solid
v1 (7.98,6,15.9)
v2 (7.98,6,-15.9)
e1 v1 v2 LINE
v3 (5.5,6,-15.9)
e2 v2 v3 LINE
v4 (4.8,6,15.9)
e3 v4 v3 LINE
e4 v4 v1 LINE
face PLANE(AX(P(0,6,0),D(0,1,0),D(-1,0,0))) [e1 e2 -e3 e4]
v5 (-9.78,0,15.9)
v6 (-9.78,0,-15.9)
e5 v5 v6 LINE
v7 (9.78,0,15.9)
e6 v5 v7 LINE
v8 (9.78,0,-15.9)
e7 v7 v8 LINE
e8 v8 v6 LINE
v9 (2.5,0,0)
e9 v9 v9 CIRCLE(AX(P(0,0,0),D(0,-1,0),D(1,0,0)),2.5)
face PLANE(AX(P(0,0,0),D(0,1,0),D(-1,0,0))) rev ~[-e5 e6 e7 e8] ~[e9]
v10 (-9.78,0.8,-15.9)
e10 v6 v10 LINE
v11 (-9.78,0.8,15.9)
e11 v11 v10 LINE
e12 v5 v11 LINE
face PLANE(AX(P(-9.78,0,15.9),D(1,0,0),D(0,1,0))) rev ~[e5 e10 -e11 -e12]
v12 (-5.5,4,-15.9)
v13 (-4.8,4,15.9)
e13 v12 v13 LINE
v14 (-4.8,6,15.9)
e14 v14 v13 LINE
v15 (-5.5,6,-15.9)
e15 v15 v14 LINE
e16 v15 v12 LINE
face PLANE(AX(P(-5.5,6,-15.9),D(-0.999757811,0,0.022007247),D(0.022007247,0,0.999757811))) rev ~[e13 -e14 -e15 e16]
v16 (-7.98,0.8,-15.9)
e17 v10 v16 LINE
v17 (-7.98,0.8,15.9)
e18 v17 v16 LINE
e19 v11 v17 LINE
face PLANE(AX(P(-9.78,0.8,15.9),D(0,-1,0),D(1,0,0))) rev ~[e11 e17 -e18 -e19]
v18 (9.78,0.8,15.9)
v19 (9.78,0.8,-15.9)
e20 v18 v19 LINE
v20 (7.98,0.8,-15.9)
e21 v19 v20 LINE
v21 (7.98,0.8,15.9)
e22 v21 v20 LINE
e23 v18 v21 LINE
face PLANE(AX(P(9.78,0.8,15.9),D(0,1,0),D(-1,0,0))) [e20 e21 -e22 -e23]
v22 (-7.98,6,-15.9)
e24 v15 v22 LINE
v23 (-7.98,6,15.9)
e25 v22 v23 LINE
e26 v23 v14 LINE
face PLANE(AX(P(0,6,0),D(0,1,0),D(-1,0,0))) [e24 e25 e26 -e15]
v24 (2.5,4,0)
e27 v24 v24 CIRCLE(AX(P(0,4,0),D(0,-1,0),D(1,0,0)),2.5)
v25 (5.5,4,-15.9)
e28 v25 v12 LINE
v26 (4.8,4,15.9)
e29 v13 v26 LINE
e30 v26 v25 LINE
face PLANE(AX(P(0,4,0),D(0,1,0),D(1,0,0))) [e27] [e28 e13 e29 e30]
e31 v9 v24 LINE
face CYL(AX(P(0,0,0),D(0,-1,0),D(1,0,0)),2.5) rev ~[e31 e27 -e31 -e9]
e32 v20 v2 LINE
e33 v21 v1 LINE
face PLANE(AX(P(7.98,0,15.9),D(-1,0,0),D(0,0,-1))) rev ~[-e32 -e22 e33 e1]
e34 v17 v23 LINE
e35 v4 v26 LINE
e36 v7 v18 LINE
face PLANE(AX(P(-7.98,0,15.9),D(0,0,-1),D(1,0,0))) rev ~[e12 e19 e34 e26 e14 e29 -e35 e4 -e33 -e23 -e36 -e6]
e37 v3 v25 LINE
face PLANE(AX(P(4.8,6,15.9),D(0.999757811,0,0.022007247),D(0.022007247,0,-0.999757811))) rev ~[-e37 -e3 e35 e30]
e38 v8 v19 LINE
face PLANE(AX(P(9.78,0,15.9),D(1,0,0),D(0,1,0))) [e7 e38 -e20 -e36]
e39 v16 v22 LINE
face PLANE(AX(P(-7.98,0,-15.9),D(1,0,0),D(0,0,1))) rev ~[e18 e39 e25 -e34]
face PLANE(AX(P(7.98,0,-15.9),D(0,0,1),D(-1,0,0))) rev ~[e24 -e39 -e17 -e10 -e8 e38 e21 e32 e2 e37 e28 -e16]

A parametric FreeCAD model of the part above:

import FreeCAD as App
import Part
import Sketcher
Q = App.Units.Quantity

doc = App.newDocument("Part")
body = doc.addObject("PartDesign::Body", "Body")

# Sketch on XZ plane
sketch1 = body.newObject("Sketcher::SketchObject", "Sketch")
sketch1.AttachmentSupport = (doc.getObject("XZ_Plane"), [""])
sketch1.MapMode = "FlatFace"
sketch1.addGeometry(Part.LineSegment(App.Vector(-8, -16, 0), App.Vector(-8, 16, 0)), False)
sketch1.addGeometry(Part.LineSegment(App.Vector(-8, 16, 0), App.Vector(8, 16, 0)), False)
sketch1.addGeometry(Part.LineSegment(App.Vector(8, 16, 0), App.Vector(8, -16, 0)), False)
sketch1.addGeometry(Part.LineSegment(App.Vector(8, -16, 0), App.Vector(-8, -16, 0)), False)
sketch1.addConstraint(Sketcher.Constraint("Coincident", 0, 2, 1, 1))
sketch1.addConstraint(Sketcher.Constraint("Coincident", 1, 2, 2, 1))
sketch1.addConstraint(Sketcher.Constraint("Coincident", 2, 2, 3, 1))
sketch1.addConstraint(Sketcher.Constraint("Coincident", 3, 2, 0, 1))
sketch1.addConstraint(Sketcher.Constraint("Vertical", 0))
sketch1.addConstraint(Sketcher.Constraint("Horizontal", 1))
sketch1.addConstraint(Sketcher.Constraint("Vertical", 2))
sketch1.addConstraint(Sketcher.Constraint("Horizontal", 3))
sketch1.addConstraint(Sketcher.Constraint("Symmetric", 0, 2, 2, 2, -1, 1))
sketch1.addConstraint(Sketcher.Constraint("DistanceY", 0, 1, 0, 2, Q("31.8 mm")))
sketch1.addConstraint(Sketcher.Constraint("DistanceX", 1, 1, 1, 2, Q("15.96 mm")))
pad1 = body.newObject("PartDesign::Pad", "Pad")
pad1.Profile = sketch1
pad1.Length = 6
pad1.Reversed = True

# Sketch on XZ plane
sketch2 = body.newObject("Sketcher::SketchObject", "Sketch001")
sketch2.AttachmentSupport = (doc.getObject("XZ_Plane"), [""])
sketch2.MapMode = "FlatFace"
sketch2.AttachmentOffset = App.Placement(App.Vector(0, 0, -6), App.Rotation())
sketch2.addGeometry(Part.LineSegment(App.Vector(-6, -16, 0), App.Vector(-5, 16, 0)), False)
sketch2.addGeometry(Part.LineSegment(App.Vector(-5, 16, 0), App.Vector(5, 16, 0)), False)
sketch2.addGeometry(Part.LineSegment(App.Vector(5, 16, 0), App.Vector(6, -16, 0)), False)
sketch2.addGeometry(Part.LineSegment(App.Vector(6, -16, 0), App.Vector(-6, -16, 0)), False)
sketch2.addConstraint(Sketcher.Constraint("Coincident", 0, 2, 1, 1))
sketch2.addConstraint(Sketcher.Constraint("Coincident", 1, 2, 2, 1))
sketch2.addConstraint(Sketcher.Constraint("Coincident", 2, 2, 3, 1))
sketch2.addConstraint(Sketcher.Constraint("Coincident", 3, 2, 0, 1))
sketch2.addConstraint(Sketcher.Constraint("Horizontal", 1))
sketch2.addConstraint(Sketcher.Constraint("Horizontal", 3))
sketch2.addConstraint(Sketcher.Constraint("Equal", 0, 2))
sketch2.addConstraint(Sketcher.Constraint("DistanceX", 3, 2, 3, 1, Q("11 mm")))
sketch2.addConstraint(Sketcher.Constraint("DistanceX", 1, 1, 1, 2, Q("9.6 mm")))
sketch2.addConstraint(Sketcher.Constraint("DistanceX", 0, 2, -1, 1, Q("4.8 mm")))
sketch2.addConstraint(Sketcher.Constraint("DistanceY", -1, 1, 0, 2, Q("15.9 mm")))
sketch2.addConstraint(Sketcher.Constraint("DistanceY", 2, 2, -1, 1, Q("15.9 mm")))
pocket1 = body.newObject("PartDesign::Pocket", "Pocket")
pocket1.Profile = sketch2
pocket1.Length = 2
pocket1.Reversed = True

# Sketch on XZ plane
sketch3 = body.newObject("Sketcher::SketchObject", "Sketch002")
sketch3.AttachmentSupport = (doc.getObject("XZ_Plane"), [""])
sketch3.MapMode = "FlatFace"
sketch3.addGeometry(Part.Circle(App.Vector(0, 0, 0), App.Vector(0, 0, 1), 2.5), False)
sketch3.addConstraint(Sketcher.Constraint("Coincident", 0, 3, -1, 1))
sketch3.addConstraint(Sketcher.Constraint("Diameter", 0, Q("5 mm")))
pocket2 = body.newObject("PartDesign::Pocket", "Pocket001")
pocket2.Profile = sketch3
pocket2.Type = "UpToFirst"

# Sketch on XY plane
sketch4 = body.newObject("Sketcher::SketchObject", "Sketch003")
sketch4.AttachmentSupport = (doc.getObject("XY_Plane"), [""])
sketch4.MapMode = "FlatFace"
sketch4.AttachmentOffset = App.Placement(App.Vector(0, 0, 15.9), App.Rotation())
sketch4.addGeometry(Part.LineSegment(App.Vector(8, 0.8, 0), App.Vector(8, 0, 0)), False)
sketch4.addGeometry(Part.LineSegment(App.Vector(8, 0, 0), App.Vector(9.8, 0, 0)), False)
sketch4.addGeometry(Part.LineSegment(App.Vector(9.8, 0, 0), App.Vector(9.8, 0.8, 0)), False)
sketch4.addGeometry(Part.LineSegment(App.Vector(9.8, 0.8, 0), App.Vector(8, 0.8, 0)), False)
sketch4.addGeometry(Part.LineSegment(App.Vector(-9.8, 0, 0), App.Vector(-8, 0, 0)), False)
sketch4.addGeometry(Part.LineSegment(App.Vector(-8, 0, 0), App.Vector(-8, 0.8, 0)), False)
sketch4.addGeometry(Part.LineSegment(App.Vector(-8, 0.8, 0), App.Vector(-9.8, 0.8, 0)), False)
sketch4.addGeometry(Part.LineSegment(App.Vector(-9.8, 0.8, 0), App.Vector(-9.8, 0, 0)), False)
sketch4.addConstraint(Sketcher.Constraint("Coincident", 0, 2, 1, 1))
sketch4.addConstraint(Sketcher.Constraint("Coincident", 1, 2, 2, 1))
sketch4.addConstraint(Sketcher.Constraint("Coincident", 2, 2, 3, 1))
sketch4.addConstraint(Sketcher.Constraint("Coincident", 3, 2, 0, 1))
sketch4.addConstraint(Sketcher.Constraint("Coincident", 4, 2, 5, 1))
sketch4.addConstraint(Sketcher.Constraint("Coincident", 5, 2, 6, 1))
sketch4.addConstraint(Sketcher.Constraint("Coincident", 6, 2, 7, 1))
sketch4.addConstraint(Sketcher.Constraint("Coincident", 7, 2, 4, 1))
sketch4.addConstraint(Sketcher.Constraint("Vertical", 0))
sketch4.addConstraint(Sketcher.Constraint("Horizontal", 1))
sketch4.addConstraint(Sketcher.Constraint("Vertical", 2))
sketch4.addConstraint(Sketcher.Constraint("Horizontal", 3))
sketch4.addConstraint(Sketcher.Constraint("Horizontal", 4))
sketch4.addConstraint(Sketcher.Constraint("Vertical", 5))
sketch4.addConstraint(Sketcher.Constraint("Horizontal", 6))
sketch4.addConstraint(Sketcher.Constraint("Vertical", 7))
sketch4.addConstraint(Sketcher.Constraint("Symmetric", 0, 2, 4, 2, -1, 1))
sketch4.addConstraint(Sketcher.Constraint("Symmetric", 2, 2, 6, 2, -2))
sketch4.addConstraint(Sketcher.Constraint("PointOnObject", 0, 2, -1))
sketch4.addConstraint(Sketcher.Constraint("DistanceX", 1, 1, 1, 2, Q("1.8 mm")))
sketch4.addConstraint(Sketcher.Constraint("DistanceY", 0, 2, 0, 1, Q("0.8 mm")))
sketch4.addConstraint(Sketcher.Constraint("DistanceX", -1, 1, 0, 2, Q("7.98 mm")))
pad2 = body.newObject("PartDesign::Pad", "Pad001")
pad2.Profile = sketch4
pad2.Length = 31.8
pad2.Reversed = True

doc.recompute()
